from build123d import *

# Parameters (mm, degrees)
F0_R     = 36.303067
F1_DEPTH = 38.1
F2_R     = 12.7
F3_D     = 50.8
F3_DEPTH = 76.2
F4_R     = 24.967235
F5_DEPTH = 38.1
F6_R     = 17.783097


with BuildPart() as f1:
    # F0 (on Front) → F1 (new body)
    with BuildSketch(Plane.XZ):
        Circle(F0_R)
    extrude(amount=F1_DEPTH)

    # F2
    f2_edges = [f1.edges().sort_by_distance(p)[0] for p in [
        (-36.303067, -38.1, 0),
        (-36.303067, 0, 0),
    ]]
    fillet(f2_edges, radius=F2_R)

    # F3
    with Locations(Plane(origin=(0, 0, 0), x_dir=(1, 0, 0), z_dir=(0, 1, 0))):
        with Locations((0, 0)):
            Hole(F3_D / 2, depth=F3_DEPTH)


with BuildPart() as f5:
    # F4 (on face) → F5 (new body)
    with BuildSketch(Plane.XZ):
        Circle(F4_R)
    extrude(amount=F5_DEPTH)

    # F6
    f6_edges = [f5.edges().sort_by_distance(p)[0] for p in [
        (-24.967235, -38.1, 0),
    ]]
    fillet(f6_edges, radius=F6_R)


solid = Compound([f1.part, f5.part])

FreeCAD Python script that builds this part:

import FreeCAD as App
import Part
import Sketcher
from FreeCAD import Vector
Q = App.Units.Quantity


def edges_at(feature, points):
    """Names of the edges that pass closest to the given points."""
    edges = feature.Shape.Edges
    near = lambda p: min(range(len(edges)), key=lambda i: edges[i].distToShape(Part.Vertex(*p))[0])
    return sorted({f"Edge{near(p) + 1}" for p in points})

doc = App.newDocument("Part")
body = doc.addObject("PartDesign::Body", "Body")

# Sketch on XZ plane
sketch1 = body.newObject("Sketcher::SketchObject", "Sketch")
sketch1.AttachmentSupport = (doc.getObject("XZ_Plane"), [""])
sketch1.MapMode = "FlatFace"
sketch1.addGeometry(Part.Circle(Vector(0, 0, 0), Vector(0, 0, 1), 36.303067), False)
sketch1.addConstraint([
    Sketcher.Constraint("Coincident", 0, 3, -1, 1),
    Sketcher.Constraint("Diameter", 0, 72.606134),
])
pad1 = body.newObject("PartDesign::Pad", "Pad")
pad1.Profile = sketch1
pad1.Length = Q("1.5 in")
doc.recompute()

fillet = body.newObject("PartDesign::Fillet", "Fillet")
fillet.Base = (pad1, edges_at(pad1, [(-36.303, -38.1, 0), (-36.303, 0, 0)]))
fillet.Radius = Q("0.5 in")

# Sketch on XZ plane
sketch2 = body.newObject("Sketcher::SketchObject", "Sketch001")
sketch2.AttachmentSupport = (doc.getObject("XZ_Plane"), [""])
sketch2.MapMode = "FlatFace"
sketch2.addGeometry(Part.Circle(Vector(0, 0, 0), Vector(0, 0, 1), 25.4), False)
sketch2.addConstraint([
    Sketcher.Constraint("Coincident", 0, 3, -1, 1),
    Sketcher.Constraint("Diameter", 0, Q("2 in")),
])
doc.recompute()
hole = body.newObject("PartDesign::Hole", "Hole")
hole.Profile = sketch2
hole.ThreadType = "None"
hole.Diameter = Q("2 in")
hole.DepthType = "Dimension"
hole.Depth = Q("3 in")
hole.DrillPoint = "Flat"
hole.Reversed = True
body2 = doc.addObject("PartDesign::Body", "Body001")

# Sketch on XZ plane
sketch3 = body2.newObject("Sketcher::SketchObject", "Sketch002")
sketch3.AttachmentSupport = (doc.getObject("XZ_Plane001"), [""])
sketch3.MapMode = "FlatFace"
sketch3.addGeometry(Part.Circle(Vector(0, 0, 0), Vector(0, 0, 1), 24.967235), False)
sketch3.addConstraint([
    Sketcher.Constraint("Coincident", 0, 3, -1, 1),
    Sketcher.Constraint("Diameter", 0, 49.93447),
])
pad2 = body2.newObject("PartDesign::Pad", "Pad001")
pad2.Profile = sketch3
pad2.Length = Q("1.5 in")
doc.recompute()

fillet2 = body2.newObject("PartDesign::Fillet", "Fillet001")
fillet2.Base = (pad2, edges_at(pad2, [(-24.967, -38.1, 0)]))
fillet2.Radius = 17.783097

doc.recompute()
